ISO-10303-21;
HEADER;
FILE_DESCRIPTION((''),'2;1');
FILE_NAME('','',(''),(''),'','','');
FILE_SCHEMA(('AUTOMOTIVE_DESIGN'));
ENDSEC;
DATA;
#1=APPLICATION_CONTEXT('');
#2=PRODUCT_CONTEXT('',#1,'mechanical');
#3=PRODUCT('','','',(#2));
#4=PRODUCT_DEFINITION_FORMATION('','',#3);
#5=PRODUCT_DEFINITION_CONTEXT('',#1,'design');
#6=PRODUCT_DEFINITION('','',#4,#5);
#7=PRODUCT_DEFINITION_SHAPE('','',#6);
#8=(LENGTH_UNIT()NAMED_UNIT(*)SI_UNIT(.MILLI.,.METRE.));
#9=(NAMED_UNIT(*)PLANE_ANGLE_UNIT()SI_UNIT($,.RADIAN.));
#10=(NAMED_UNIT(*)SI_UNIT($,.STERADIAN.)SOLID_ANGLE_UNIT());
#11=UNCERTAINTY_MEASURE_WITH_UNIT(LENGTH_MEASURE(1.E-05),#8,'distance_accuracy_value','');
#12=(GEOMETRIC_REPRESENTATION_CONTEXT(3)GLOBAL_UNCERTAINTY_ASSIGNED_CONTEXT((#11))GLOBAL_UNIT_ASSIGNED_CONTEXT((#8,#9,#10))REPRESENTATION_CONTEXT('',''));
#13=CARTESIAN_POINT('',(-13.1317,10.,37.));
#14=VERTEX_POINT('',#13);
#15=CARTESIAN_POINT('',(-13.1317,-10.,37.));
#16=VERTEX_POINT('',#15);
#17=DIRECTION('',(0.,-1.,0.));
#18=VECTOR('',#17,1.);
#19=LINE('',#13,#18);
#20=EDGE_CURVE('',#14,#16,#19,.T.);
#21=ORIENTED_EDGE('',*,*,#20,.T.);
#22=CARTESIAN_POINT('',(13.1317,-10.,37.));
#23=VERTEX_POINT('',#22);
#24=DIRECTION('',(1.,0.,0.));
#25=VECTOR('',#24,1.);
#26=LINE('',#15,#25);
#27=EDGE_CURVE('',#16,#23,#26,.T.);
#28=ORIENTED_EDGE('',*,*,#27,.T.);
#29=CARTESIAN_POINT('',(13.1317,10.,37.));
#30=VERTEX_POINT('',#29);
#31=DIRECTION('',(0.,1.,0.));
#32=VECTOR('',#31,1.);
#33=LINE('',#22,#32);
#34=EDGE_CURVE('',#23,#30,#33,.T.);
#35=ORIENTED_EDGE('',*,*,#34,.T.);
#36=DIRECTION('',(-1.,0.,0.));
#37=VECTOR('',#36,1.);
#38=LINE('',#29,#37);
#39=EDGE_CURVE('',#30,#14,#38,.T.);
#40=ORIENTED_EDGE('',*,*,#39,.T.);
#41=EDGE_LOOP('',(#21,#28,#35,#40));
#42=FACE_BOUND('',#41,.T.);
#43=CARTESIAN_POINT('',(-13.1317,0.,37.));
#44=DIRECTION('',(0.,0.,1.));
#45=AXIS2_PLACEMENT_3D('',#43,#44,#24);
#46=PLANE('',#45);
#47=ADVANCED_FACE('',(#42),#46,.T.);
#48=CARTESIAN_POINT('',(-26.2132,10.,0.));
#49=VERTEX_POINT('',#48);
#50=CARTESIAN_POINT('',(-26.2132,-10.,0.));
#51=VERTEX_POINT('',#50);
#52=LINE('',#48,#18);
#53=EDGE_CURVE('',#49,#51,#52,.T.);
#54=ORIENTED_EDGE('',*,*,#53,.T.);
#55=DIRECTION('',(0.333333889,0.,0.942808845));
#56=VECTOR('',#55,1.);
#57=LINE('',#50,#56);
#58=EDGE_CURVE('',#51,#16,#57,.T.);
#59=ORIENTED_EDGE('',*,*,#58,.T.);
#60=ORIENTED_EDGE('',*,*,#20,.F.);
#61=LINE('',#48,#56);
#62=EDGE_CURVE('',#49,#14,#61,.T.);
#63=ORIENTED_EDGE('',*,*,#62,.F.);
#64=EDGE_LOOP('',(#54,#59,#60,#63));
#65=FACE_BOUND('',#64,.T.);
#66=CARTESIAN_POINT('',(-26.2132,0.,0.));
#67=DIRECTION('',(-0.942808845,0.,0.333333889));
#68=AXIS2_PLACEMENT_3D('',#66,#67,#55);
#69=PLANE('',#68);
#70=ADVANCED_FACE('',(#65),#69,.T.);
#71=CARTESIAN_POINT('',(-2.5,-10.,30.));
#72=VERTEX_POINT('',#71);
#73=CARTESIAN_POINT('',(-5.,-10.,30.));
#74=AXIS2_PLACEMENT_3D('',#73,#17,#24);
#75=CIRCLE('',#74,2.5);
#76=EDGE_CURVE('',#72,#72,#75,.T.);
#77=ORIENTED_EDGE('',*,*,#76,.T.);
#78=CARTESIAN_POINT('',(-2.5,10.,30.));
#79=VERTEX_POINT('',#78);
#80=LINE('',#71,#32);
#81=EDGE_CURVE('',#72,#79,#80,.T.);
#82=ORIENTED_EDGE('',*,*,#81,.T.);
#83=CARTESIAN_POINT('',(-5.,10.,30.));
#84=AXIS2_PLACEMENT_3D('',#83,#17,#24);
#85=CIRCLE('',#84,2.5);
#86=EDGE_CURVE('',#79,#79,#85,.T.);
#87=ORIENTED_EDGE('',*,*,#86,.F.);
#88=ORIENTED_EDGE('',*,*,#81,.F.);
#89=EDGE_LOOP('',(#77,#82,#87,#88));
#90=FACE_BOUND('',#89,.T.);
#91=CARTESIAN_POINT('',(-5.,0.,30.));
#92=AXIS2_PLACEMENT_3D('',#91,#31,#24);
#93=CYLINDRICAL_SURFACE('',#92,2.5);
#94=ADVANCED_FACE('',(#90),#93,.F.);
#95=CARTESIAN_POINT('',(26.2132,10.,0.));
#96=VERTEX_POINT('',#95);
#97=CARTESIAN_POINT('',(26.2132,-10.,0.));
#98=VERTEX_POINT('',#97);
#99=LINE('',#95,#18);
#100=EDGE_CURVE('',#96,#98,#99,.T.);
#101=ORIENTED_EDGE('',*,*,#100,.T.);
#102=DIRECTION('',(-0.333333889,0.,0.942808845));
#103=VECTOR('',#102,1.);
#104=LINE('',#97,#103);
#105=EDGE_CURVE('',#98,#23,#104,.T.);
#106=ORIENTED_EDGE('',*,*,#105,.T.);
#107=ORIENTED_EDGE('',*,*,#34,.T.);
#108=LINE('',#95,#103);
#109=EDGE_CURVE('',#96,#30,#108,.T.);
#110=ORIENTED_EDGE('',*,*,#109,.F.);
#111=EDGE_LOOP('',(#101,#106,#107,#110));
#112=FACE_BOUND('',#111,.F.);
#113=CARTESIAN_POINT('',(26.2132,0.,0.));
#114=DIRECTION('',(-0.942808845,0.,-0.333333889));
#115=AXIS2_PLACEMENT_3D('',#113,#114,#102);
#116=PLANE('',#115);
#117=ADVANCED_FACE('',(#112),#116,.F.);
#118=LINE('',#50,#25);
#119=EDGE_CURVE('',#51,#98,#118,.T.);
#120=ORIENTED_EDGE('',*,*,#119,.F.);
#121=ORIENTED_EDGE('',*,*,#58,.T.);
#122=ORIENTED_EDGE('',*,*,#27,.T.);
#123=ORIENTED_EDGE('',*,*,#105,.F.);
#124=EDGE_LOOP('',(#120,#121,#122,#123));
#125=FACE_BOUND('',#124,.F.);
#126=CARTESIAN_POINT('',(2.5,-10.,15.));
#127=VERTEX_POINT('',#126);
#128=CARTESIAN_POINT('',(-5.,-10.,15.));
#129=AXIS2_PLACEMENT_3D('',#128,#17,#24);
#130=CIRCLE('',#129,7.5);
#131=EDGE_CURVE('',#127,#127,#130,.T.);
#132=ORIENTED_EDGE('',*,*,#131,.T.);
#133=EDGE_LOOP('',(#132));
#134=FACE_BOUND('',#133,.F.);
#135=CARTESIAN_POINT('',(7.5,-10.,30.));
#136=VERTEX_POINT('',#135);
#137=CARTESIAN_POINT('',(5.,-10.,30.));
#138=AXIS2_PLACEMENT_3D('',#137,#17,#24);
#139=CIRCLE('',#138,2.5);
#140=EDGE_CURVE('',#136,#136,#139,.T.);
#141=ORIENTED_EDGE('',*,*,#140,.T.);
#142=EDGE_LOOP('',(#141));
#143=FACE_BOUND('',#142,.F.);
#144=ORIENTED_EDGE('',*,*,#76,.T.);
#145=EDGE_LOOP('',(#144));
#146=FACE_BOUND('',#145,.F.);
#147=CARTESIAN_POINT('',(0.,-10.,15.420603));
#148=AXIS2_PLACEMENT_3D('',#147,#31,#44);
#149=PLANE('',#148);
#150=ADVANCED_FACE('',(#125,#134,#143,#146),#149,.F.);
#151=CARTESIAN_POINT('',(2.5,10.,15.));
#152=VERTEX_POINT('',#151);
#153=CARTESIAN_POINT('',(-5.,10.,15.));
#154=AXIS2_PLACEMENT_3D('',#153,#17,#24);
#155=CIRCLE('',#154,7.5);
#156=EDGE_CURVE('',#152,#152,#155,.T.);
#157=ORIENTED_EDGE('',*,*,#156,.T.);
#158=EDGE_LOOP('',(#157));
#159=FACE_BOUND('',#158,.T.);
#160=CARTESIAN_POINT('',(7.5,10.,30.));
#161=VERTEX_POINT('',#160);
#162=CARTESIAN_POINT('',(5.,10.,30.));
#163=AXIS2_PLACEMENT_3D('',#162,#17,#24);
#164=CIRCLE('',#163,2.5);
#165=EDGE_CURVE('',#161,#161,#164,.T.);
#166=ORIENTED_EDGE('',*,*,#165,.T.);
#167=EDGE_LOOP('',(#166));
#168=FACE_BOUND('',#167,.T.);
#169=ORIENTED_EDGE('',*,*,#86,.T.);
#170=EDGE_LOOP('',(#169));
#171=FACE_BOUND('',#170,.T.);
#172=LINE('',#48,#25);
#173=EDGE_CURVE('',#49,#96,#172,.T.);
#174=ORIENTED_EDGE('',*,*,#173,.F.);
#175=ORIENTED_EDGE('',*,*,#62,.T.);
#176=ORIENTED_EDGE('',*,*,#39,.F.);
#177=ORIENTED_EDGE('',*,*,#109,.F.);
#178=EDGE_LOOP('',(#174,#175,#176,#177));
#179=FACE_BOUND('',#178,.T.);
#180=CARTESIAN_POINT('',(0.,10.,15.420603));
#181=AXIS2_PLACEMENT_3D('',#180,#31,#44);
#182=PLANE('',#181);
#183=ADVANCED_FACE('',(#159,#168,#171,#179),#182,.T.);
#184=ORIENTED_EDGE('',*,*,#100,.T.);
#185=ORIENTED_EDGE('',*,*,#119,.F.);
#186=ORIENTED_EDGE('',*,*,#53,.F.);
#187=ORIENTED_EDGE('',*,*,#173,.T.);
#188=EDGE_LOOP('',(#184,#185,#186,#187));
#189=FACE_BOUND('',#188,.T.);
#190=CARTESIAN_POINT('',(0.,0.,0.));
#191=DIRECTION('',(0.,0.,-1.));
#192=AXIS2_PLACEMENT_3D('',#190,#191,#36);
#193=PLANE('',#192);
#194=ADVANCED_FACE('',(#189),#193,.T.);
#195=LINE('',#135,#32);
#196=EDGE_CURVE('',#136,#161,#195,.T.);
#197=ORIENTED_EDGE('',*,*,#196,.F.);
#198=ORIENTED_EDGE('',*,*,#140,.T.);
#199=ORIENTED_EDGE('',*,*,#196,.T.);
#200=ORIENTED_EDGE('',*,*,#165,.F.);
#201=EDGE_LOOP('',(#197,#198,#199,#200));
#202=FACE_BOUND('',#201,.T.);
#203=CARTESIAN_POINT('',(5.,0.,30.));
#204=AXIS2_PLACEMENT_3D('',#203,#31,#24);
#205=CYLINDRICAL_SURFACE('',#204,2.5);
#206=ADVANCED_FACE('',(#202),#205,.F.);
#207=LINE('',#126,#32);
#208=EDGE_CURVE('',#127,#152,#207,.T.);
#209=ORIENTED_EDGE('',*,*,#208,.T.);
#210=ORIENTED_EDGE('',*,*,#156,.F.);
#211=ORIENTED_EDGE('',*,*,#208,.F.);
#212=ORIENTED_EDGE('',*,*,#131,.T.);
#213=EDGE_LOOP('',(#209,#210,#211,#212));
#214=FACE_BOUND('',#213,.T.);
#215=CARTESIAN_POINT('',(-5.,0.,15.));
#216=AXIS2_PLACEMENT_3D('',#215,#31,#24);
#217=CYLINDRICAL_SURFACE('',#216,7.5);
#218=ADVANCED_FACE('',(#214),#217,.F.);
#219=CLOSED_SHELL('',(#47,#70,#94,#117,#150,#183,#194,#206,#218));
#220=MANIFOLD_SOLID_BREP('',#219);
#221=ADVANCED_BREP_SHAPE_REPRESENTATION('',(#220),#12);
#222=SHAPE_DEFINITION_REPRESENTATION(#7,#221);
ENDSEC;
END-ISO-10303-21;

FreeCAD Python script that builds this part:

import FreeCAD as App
import Part
import Sketcher

V = App.Vector
Q = App.Units.Quantity

doc = App.newDocument("Part")
body = doc.addObject("PartDesign::Body", "Body")

# Sketch on XZ plane
sketch1 = body.newObject("Sketcher::SketchObject", "Sketch")
sketch1.AttachmentSupport = (doc.getObject("XZ_Plane"), [""])
sketch1.MapMode = "FlatFace"
sketch1.addGeometry(Part.LineSegment(V(13.1, 37, 0), V(-13.1, 37, 0)), False)
sketch1.addGeometry(Part.LineSegment(V(-13.1, 37, 0), V(-26.2, 0, 0)), False)
sketch1.addGeometry(Part.LineSegment(V(-26.2, 0, 0), V(26.2, 0, 0)), False)
sketch1.addGeometry(Part.LineSegment(V(26.2, 0, 0), V(13.1, 37, 0)), False)
sketch1.addGeometry(Part.Circle(V(-5, 15, 0), V(0, 0, 1), 7.5), False)
sketch1.addGeometry(Part.Circle(V(-5, 30, 0), V(0, 0, 1), 2.5), False)
sketch1.addGeometry(Part.Circle(V(5, 30, 0), V(0, 0, 1), 2.5), False)
sketch1.addConstraint(Sketcher.Constraint("Coincident", 0, 2, 1, 1))
sketch1.addConstraint(Sketcher.Constraint("Coincident", 1, 2, 2, 1))
sketch1.addConstraint(Sketcher.Constraint("Coincident", 2, 2, 3, 1))
sketch1.addConstraint(Sketcher.Constraint("Coincident", 3, 2, 0, 1))
sketch1.addConstraint(Sketcher.Constraint("Horizontal", 0))
sketch1.addConstraint(Sketcher.Constraint("Horizontal", 2))
sketch1.addConstraint(Sketcher.Constraint("Equal", 5, 6))
sketch1.addConstraint(Sketcher.Constraint("Symmetric", 1, 2, 2, 2, -1, 1))
sketch1.addConstraint(Sketcher.Constraint("Symmetric", 5, 3, 6, 3, -2))
sketch1.addConstraint(Sketcher.Constraint("Vertical", 4, 3, 5, 3))
sketch1.addConstraint(Sketcher.Constraint("Equal", 1, 3))
sketch1.addConstraint(Sketcher.Constraint("Diameter", 4, Q("15 mm")))
sketch1.addConstraint(Sketcher.Constraint("Diameter", 5, Q("5 mm")))
sketch1.addConstraint(Sketcher.Constraint("DistanceX", 4, 3, -1, 1, Q("5 mm")))
sketch1.addConstraint(Sketcher.Constraint("DistanceY", -1, 1, 4, 3, Q("15 mm")))
sketch1.addConstraint(Sketcher.Constraint("DistanceY", -1, 1, 5, 3, Q("30 mm")))
sketch1.addConstraint(Sketcher.Constraint("DistanceY", -1, 1, 0, 2, Q("37 mm")))
sketch1.addConstraint(Sketcher.Constraint("DistanceX", 0, 2, 0, 1, Q("26.2634 mm")))
sketch1.addConstraint(Sketcher.Constraint("DistanceX", 2, 1, 2, 2, Q("52.4264 mm")))
pad1 = body.newObject("PartDesign::Pad", "Pad")
pad1.Profile = sketch1
pad1.Length = 20
pad1.Midplane = True

doc.recompute()
